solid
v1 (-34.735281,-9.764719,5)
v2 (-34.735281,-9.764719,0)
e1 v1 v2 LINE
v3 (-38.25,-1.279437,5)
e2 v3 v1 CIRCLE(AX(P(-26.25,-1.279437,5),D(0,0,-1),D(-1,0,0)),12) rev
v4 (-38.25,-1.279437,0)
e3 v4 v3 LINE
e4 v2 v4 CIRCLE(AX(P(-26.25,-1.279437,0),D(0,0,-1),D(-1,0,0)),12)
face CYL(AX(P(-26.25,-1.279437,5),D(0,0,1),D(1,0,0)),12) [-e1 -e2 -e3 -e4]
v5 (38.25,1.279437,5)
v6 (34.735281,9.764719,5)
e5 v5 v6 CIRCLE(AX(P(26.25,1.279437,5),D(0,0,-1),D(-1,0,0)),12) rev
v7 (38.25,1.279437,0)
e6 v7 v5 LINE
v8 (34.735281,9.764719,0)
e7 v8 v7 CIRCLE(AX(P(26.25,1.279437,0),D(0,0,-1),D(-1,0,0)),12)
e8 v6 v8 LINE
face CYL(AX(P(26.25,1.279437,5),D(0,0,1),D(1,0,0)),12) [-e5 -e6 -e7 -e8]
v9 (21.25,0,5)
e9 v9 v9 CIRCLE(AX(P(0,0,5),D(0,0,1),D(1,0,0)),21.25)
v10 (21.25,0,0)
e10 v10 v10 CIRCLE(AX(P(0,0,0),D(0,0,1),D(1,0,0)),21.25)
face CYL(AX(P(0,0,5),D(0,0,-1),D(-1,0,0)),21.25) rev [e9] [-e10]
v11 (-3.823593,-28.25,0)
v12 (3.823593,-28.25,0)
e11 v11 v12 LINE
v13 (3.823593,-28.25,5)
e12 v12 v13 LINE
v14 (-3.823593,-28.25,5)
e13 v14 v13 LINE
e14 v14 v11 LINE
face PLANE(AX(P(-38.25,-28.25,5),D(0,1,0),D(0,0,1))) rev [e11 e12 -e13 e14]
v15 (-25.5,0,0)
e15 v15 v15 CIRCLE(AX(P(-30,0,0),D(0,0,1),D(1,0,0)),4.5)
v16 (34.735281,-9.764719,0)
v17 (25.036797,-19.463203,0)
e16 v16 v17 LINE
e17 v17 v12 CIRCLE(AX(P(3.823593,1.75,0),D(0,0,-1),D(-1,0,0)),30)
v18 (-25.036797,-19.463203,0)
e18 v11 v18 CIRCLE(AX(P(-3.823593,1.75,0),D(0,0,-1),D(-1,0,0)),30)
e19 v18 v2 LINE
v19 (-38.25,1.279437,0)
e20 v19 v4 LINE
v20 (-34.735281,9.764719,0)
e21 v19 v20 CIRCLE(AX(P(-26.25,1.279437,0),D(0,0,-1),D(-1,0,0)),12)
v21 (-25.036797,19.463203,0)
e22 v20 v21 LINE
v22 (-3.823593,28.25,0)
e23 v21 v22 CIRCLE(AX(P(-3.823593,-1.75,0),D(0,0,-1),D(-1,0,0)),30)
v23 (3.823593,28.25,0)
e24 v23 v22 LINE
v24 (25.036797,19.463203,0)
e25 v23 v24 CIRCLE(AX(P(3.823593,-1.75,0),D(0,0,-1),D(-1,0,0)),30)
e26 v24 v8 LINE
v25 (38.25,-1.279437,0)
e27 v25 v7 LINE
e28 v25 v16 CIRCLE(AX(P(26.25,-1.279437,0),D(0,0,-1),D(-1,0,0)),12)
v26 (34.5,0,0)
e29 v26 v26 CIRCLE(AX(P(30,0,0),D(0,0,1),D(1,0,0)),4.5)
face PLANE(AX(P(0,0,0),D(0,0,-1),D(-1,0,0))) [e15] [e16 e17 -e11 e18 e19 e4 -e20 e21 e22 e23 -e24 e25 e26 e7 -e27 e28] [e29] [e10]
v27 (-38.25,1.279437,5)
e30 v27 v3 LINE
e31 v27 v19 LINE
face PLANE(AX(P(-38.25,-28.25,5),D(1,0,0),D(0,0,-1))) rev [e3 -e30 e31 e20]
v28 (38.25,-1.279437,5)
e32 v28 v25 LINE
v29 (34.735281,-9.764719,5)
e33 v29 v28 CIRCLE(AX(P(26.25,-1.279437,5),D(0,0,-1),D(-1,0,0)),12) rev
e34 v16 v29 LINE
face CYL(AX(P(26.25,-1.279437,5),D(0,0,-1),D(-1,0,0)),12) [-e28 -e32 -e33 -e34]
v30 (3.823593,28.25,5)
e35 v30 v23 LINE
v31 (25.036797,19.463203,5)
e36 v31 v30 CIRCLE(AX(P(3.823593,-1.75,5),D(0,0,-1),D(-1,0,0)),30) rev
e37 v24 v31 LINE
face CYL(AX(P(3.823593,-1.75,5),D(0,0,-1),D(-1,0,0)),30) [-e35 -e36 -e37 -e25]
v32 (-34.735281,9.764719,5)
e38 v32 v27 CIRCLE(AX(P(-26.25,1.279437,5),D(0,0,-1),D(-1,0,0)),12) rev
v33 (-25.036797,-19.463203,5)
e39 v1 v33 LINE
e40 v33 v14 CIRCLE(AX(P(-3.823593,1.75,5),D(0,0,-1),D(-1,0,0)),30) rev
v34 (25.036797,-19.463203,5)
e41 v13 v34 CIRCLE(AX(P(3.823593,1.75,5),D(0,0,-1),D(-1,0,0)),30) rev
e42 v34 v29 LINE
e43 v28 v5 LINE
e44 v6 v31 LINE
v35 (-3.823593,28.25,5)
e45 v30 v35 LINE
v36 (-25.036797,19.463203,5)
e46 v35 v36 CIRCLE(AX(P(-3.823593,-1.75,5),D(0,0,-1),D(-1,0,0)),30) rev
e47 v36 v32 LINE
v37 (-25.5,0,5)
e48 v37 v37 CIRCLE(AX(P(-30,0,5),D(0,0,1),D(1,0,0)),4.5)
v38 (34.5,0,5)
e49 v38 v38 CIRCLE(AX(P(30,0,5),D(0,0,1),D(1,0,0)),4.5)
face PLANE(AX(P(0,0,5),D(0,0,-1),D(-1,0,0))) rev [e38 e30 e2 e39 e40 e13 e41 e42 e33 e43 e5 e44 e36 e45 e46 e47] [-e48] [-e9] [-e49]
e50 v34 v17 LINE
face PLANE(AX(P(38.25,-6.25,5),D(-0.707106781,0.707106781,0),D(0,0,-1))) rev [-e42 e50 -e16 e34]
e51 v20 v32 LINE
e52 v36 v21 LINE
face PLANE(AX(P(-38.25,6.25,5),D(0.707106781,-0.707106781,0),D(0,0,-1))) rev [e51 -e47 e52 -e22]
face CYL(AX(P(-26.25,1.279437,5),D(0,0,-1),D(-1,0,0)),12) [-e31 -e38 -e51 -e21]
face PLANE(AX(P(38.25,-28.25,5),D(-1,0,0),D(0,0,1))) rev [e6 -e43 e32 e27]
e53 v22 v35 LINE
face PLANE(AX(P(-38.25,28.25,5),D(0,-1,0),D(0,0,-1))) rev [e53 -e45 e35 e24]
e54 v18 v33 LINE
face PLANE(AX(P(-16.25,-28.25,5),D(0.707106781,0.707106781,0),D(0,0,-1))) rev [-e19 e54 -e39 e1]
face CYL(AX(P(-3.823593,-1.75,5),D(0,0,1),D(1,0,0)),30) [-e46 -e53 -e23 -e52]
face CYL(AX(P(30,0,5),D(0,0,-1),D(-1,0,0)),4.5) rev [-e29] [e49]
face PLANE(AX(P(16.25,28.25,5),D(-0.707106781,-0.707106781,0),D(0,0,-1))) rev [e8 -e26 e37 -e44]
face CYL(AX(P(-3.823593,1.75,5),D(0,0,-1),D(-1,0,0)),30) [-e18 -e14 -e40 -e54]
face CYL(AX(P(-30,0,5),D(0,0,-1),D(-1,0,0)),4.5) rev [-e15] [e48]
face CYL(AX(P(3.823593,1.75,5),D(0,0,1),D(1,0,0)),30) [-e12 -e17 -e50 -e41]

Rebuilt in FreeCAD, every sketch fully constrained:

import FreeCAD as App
import Part
import Sketcher


def edges_at(feature, points):
    """Names of the edges that pass closest to the given points."""
    edges = feature.Shape.Edges
    near = lambda p: min(range(len(edges)), key=lambda i: edges[i].distToShape(Part.Vertex(*p))[0])
    return sorted({f"Edge{near(p) + 1}" for p in points})

doc = App.newDocument("Part")
body = doc.addObject("PartDesign::Body", "Body")

# Sketch on XY plane
sketch1 = doc.addObject("Sketcher::SketchObject", "Sketch")
body.addObject(sketch1)
sketch1.AttachmentSupport = (doc.XY_Plane, [""])
sketch1.MapMode = "FlatFace"
sketch1.addGeometry(Part.LineSegment(App.Vector(-38.2, 28.2, 0), App.Vector(-38.2, -28.2, 0)), False)
sketch1.addGeometry(Part.LineSegment(App.Vector(-38.2, -28.2, 0), App.Vector(38.2, -28.2, 0)), False)
sketch1.addGeometry(Part.LineSegment(App.Vector(38.2, -28.2, 0), App.Vector(38.2, 28.2, 0)), False)
sketch1.addGeometry(Part.LineSegment(App.Vector(38.2, 28.2, 0), App.Vector(-38.2, 28.2, 0)), False)
sketch1.addGeometry(Part.Circle(App.Vector(-30, 0, 0), App.Vector(0, 0, 1), 4.5), False)
sketch1.addGeometry(Part.Circle(App.Vector(0, 0, 0), App.Vector(0, 0, 1), 21.2), False)
sketch1.addGeometry(Part.Circle(App.Vector(30, 0, 0), App.Vector(0, 0, 1), 4.5), False)
sketch1.addConstraint(Sketcher.Constraint("Coincident", 0, 2, 1, 1))
sketch1.addConstraint(Sketcher.Constraint("Coincident", 1, 2, 2, 1))
sketch1.addConstraint(Sketcher.Constraint("Coincident", 2, 2, 3, 1))
sketch1.addConstraint(Sketcher.Constraint("Coincident", 3, 2, 0, 1))
sketch1.addConstraint(Sketcher.Constraint("Vertical", 0))
sketch1.addConstraint(Sketcher.Constraint("Horizontal", 1))
sketch1.addConstraint(Sketcher.Constraint("Vertical", 2))
sketch1.addConstraint(Sketcher.Constraint("Horizontal", 3))
sketch1.addConstraint(Sketcher.Constraint("Coincident", 5, 3, -1, 1))
sketch1.addConstraint(Sketcher.Constraint("Equal", 4, 6))
sketch1.addConstraint(Sketcher.Constraint("Symmetric", 4, 3, 6, 3, -1, 1))
sketch1.addConstraint(Sketcher.Constraint("Symmetric", 0, 2, 2, 2, -1, 1))
sketch1.addConstraint(Sketcher.Constraint("PointOnObject", 4, 3, -1))
sketch1.addConstraint(Sketcher.Constraint("Diameter", 4, 9.0))
sketch1.addConstraint(Sketcher.Constraint("Diameter", 5, 42.5))
sketch1.addConstraint(Sketcher.Constraint("DistanceX", 1, 1, 1, 2, 76.5))
sketch1.addConstraint(Sketcher.Constraint("DistanceY", 0, 2, 0, 1, 56.5))
sketch1.addConstraint(Sketcher.Constraint("DistanceX", 4, 3, -1, 1, 30.0))
pad1 = doc.addObject("PartDesign::Pad", "Pad")
body.addObject(pad1)
pad1.Profile = sketch1
pad1.Length = 5
doc.recompute()

chamfer = doc.addObject("PartDesign::Chamfer", "Chamfer")
body.addObject(chamfer)
chamfer.Base = (pad1, edges_at(pad1, [(38.25, 28.25, 2.5)]))
chamfer.Size = 22
doc.recompute()

chamfer2 = doc.addObject("PartDesign::Chamfer", "Chamfer001")
body.addObject(chamfer2)
chamfer2.Base = (chamfer, edges_at(chamfer, [(-38.25, 28.25, 2.5)]))
chamfer2.Size = 22
doc.recompute()

chamfer3 = doc.addObject("PartDesign::Chamfer", "Chamfer002")
body.addObject(chamfer3)
chamfer3.Base = (chamfer2, edges_at(chamfer2, [(-38.25, -28.25, 2.5)]))
chamfer3.Size = 22
doc.recompute()

chamfer4 = doc.addObject("PartDesign::Chamfer", "Chamfer003")
body.addObject(chamfer4)
chamfer4.Base = (chamfer3, edges_at(chamfer3, [(38.25, -28.25, 2.5)]))
chamfer4.Size = 22
doc.recompute()

fillet = doc.addObject("PartDesign::Fillet", "Fillet")
body.addObject(fillet)
fillet.Base = (chamfer4, edges_at(chamfer4, [(16.25, 28.25, 2.5)]))
fillet.Radius = 30
doc.recompute()

fillet2 = doc.addObject("PartDesign::Fillet", "Fillet001")
body.addObject(fillet2)
fillet2.Base = (fillet, edges_at(fillet, [(-16.25, 28.25, 2.5)]))
fillet2.Radius = 30
doc.recompute()

fillet3 = doc.addObject("PartDesign::Fillet", "Fillet002")
body.addObject(fillet3)
fillet3.Base = (fillet2, edges_at(fillet2, [(16.25, -28.25, 2.5)]))
fillet3.Radius = 30
doc.recompute()

fillet4 = doc.addObject("PartDesign::Fillet", "Fillet003")
body.addObject(fillet4)
fillet4.Base = (fillet3, edges_at(fillet3, [(-16.25, -28.25, 2.5)]))
fillet4.Radius = 30
doc.recompute()

fillet5 = doc.addObject("PartDesign::Fillet", "Fillet004")
body.addObject(fillet5)
fillet5.Base = (fillet4, edges_at(fillet4, [(38.25, 6.25, 2.5)]))
fillet5.Radius = 12
doc.recompute()

fillet6 = doc.addObject("PartDesign::Fillet", "Fillet005")
body.addObject(fillet6)
fillet6.Base = (fillet5, edges_at(fillet5, [(38.25, -6.25, 2.5)]))
fillet6.Radius = 12
doc.recompute()

fillet7 = doc.addObject("PartDesign::Fillet", "Fillet006")
body.addObject(fillet7)
fillet7.Base = (fillet6, edges_at(fillet6, [(-38.25, 6.25, 2.5)]))
fillet7.Radius = 12
doc.recompute()

fillet8 = doc.addObject("PartDesign::Fillet", "Fillet007")
body.addObject(fillet8)
fillet8.Base = (fillet7, edges_at(fillet7, [(-38.25, -6.25, 2.5)]))
fillet8.Radius = 12

doc.recompute()
